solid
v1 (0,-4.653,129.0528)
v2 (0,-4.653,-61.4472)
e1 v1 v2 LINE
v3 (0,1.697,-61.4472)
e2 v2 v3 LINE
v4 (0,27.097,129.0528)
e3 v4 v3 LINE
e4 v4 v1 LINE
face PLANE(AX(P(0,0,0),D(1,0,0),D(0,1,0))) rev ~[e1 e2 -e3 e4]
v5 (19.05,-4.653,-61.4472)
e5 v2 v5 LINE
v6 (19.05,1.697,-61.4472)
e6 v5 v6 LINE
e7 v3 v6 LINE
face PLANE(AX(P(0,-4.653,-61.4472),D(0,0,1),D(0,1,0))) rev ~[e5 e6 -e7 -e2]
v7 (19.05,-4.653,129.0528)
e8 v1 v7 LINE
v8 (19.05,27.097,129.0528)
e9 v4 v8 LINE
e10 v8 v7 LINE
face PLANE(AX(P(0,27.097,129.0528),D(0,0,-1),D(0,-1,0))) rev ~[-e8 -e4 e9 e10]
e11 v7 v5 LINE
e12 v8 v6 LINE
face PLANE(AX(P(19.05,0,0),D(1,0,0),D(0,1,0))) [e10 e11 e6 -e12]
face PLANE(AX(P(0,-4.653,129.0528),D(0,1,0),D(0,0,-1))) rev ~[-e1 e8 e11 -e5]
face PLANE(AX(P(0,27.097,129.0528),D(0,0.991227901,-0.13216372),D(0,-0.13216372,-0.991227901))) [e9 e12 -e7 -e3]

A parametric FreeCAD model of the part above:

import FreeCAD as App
import Part
import Sketcher
Q = App.Units.Quantity

doc = App.newDocument("Part")
body = doc.addObject("PartDesign::Body", "Body")

sketch1 = doc.addObject("Sketcher::SketchObject", "Sketch")
body.addObject(sketch1)
sketch1.AttachmentSupport = (doc.YZ_Plane, [""])
sketch1.MapMode = "FlatFace"
sketch1.addGeometry([
    Part.LineSegment(App.Vector(2, -61, 0), App.Vector(27, 129, 0)),
    Part.LineSegment(App.Vector(27, 129, 0), App.Vector(-5, 129, 0)),
    Part.LineSegment(App.Vector(-5, 129, 0), App.Vector(-5, -61, 0)),
    Part.LineSegment(App.Vector(-5, -61, 0), App.Vector(2, -61, 0)),
], False)
sketch1.addConstraint([
    Sketcher.Constraint("Coincident", 0, 2, 1, 1),
    Sketcher.Constraint("Coincident", 1, 2, 2, 1),
    Sketcher.Constraint("Coincident", 2, 2, 3, 1),
    Sketcher.Constraint("Coincident", 3, 2, 0, 1),
    Sketcher.Constraint("Horizontal", 1),
    Sketcher.Constraint("Vertical", 2),
    Sketcher.Constraint("Horizontal", 3),
    Sketcher.Constraint("DistanceY", 2, 2, 2, 1, Q("7.5 in")),
    Sketcher.Constraint("DistanceX", 1, 2, 1, 1, Q("1.25 in")),
    Sketcher.Constraint("DistanceX", 3, 1, 3, 2, Q("0.25 in")),
    Sketcher.Constraint("DistanceX", -1, 1, 0, 2, Q("1.0668 in")),
    Sketcher.Constraint("DistanceY", -1, 1, 0, 2, 129.0528),
])
pad1 = doc.addObject("PartDesign::Pad", "Pad")
body.addObject(pad1)
pad1.Profile = sketch1
pad1.Length = Q("0.75 in")

doc.recompute()
